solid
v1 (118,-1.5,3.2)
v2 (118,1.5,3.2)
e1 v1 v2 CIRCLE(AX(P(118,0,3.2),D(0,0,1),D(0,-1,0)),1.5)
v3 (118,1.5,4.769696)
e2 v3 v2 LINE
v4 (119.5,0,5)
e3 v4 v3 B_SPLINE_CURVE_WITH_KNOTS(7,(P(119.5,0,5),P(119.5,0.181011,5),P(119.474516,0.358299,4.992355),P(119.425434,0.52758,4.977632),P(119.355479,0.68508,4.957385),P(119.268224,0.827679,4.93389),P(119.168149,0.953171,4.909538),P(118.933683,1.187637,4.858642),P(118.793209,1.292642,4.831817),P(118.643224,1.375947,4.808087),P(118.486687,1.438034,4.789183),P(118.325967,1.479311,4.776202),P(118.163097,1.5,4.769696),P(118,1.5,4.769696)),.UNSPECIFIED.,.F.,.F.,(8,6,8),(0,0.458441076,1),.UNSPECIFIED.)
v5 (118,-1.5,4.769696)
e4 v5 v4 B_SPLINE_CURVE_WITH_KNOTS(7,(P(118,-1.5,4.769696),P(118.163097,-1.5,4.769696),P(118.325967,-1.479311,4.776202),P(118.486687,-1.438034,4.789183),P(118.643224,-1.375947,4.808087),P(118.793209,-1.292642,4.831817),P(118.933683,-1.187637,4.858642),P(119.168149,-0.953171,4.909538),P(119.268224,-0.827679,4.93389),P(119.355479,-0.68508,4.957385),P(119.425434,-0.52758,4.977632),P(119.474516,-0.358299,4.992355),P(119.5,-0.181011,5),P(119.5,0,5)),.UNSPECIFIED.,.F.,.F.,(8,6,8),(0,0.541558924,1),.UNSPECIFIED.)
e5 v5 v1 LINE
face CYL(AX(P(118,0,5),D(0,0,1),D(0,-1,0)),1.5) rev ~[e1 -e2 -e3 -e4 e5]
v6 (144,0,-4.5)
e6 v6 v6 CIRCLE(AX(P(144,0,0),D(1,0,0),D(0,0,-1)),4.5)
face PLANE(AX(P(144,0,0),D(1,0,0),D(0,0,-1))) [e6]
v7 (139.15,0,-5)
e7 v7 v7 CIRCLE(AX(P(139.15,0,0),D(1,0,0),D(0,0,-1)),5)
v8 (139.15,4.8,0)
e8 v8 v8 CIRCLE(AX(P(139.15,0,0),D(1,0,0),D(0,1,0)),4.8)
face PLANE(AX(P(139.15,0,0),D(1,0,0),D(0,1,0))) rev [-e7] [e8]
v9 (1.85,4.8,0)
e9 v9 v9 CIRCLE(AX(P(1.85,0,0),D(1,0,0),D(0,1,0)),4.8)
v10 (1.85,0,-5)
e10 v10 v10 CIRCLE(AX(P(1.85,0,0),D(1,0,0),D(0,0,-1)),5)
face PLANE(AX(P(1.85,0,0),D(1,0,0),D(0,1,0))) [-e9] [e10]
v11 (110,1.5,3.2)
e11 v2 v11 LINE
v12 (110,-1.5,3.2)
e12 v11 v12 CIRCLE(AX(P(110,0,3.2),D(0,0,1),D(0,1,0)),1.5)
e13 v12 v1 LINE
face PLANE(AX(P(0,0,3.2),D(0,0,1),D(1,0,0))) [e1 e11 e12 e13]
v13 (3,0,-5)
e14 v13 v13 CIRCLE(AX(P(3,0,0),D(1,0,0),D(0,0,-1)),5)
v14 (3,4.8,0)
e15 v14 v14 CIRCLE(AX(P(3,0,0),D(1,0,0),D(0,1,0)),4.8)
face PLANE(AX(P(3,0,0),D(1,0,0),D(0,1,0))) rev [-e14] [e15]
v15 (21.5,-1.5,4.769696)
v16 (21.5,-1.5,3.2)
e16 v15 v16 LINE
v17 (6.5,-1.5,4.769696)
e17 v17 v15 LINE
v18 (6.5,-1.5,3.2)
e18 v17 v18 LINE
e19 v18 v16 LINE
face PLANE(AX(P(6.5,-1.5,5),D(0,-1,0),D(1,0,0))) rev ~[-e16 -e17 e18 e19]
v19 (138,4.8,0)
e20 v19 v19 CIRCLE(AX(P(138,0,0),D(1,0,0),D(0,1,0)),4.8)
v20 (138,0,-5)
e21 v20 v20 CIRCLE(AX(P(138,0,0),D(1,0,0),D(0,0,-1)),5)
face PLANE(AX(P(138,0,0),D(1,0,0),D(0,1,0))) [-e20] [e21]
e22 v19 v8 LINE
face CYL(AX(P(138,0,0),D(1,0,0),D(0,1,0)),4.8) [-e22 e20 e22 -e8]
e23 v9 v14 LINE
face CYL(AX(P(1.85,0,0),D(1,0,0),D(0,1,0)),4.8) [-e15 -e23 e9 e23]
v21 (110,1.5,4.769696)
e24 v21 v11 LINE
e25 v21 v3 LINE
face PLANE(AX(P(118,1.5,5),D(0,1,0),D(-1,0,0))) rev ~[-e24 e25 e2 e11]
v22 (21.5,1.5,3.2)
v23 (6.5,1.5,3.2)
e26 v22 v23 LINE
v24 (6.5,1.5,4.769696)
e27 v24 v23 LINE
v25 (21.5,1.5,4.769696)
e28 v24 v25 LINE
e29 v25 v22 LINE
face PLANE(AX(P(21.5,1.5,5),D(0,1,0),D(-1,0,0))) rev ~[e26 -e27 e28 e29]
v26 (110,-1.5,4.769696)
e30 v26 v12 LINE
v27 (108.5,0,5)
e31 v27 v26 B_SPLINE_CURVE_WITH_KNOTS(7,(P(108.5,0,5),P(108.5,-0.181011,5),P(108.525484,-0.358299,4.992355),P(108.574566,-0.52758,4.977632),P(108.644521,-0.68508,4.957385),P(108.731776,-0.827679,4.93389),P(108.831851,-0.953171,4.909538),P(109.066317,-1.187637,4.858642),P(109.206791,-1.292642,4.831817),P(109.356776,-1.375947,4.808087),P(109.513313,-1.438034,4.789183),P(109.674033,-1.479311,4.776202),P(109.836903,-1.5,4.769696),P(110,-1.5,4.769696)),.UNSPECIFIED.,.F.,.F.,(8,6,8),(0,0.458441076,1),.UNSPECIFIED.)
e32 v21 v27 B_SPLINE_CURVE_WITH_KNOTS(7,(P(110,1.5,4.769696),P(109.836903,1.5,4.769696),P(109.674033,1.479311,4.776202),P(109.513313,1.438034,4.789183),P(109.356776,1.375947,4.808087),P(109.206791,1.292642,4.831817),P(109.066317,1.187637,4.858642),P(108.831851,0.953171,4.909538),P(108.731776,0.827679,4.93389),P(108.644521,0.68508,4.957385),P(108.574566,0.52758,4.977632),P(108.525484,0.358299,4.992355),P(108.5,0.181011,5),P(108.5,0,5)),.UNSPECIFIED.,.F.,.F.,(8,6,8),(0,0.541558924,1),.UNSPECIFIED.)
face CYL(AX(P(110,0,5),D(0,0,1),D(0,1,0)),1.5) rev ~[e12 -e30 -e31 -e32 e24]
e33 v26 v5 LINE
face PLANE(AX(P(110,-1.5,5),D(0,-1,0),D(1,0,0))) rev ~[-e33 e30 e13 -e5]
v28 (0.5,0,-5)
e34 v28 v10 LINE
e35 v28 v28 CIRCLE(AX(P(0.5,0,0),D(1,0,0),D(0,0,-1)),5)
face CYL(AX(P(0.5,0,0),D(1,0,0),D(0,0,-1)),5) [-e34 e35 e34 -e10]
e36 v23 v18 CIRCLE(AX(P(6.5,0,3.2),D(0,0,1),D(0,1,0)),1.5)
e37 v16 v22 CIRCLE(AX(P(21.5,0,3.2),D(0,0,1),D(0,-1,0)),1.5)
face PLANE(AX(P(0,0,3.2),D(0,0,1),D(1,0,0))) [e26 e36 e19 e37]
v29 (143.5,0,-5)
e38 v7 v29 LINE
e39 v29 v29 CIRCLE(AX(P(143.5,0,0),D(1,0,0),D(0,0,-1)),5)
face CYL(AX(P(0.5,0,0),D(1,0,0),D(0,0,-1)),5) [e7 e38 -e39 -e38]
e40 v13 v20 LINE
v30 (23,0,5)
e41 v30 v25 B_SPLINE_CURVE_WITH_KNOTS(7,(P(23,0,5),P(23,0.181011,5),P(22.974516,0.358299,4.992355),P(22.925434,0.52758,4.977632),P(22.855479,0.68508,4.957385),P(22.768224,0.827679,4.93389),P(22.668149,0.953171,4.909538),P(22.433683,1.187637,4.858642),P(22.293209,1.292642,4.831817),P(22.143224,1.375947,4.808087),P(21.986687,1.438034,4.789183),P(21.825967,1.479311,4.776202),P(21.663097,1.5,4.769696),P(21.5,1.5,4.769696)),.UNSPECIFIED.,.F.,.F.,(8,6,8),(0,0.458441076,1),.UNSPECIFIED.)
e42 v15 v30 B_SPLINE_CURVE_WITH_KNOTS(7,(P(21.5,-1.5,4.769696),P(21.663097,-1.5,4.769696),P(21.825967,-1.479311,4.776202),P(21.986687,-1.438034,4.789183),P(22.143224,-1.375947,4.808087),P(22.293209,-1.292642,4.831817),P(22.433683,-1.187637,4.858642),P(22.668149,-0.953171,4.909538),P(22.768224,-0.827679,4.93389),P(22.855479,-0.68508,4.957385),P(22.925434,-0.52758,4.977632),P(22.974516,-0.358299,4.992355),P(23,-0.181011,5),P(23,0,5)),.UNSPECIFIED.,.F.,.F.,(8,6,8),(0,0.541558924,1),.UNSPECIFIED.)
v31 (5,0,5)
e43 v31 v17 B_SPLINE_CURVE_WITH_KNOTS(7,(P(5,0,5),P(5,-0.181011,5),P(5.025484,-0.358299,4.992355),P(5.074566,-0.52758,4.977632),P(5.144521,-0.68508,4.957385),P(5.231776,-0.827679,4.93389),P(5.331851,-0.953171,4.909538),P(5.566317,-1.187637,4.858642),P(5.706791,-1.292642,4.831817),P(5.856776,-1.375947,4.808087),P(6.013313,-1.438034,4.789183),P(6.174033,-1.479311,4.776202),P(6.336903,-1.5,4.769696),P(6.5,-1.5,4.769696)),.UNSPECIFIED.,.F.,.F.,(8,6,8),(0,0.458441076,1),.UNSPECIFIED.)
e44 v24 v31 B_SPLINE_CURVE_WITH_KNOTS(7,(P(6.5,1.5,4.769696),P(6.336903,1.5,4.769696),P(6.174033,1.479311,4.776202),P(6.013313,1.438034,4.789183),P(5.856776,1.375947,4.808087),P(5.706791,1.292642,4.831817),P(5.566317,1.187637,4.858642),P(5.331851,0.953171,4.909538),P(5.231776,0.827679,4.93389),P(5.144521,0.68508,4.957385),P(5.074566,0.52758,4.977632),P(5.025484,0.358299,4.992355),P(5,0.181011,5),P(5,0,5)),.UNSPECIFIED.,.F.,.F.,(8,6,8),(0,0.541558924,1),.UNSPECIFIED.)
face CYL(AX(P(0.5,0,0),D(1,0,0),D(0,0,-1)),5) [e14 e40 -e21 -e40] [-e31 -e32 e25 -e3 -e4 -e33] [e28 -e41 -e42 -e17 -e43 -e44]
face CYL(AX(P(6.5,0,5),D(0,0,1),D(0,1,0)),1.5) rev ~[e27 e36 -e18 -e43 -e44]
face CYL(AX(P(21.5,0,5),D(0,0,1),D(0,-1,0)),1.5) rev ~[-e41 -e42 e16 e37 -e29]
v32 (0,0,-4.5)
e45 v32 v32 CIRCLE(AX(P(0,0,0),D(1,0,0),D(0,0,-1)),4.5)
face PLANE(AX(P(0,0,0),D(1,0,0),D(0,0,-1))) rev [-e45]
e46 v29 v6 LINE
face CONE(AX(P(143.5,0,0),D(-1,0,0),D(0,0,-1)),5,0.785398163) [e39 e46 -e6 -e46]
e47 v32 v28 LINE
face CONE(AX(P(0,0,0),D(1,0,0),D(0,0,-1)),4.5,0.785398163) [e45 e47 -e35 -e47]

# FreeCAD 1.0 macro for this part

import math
import FreeCAD as App
import Part
import Sketcher
from FreeCAD import Vector


def add_polygon(sketch, points):
    """Adds a closed chain of lines whose ends are joined by coincident constraints."""
    first, n = sketch.GeometryCount, len(points)
    for a, b in zip(points, points[1:] + points[:1]):
        sketch.addGeometry(Part.LineSegment(App.Vector(*a, 0), App.Vector(*b, 0)), False)
    for i in range(n):
        sketch.addConstraint(Sketcher.Constraint("Coincident", first + i, 2, first + (i + 1) % n, 1))

doc = App.newDocument("Part")
body = doc.addObject("PartDesign::Body", "Body")

sketch1 = body.newObject("Sketcher::SketchObject", "Sketch")
sketch1.AttachmentSupport = (doc.getObject("XZ_Plane"), [""])
sketch1.MapMode = "FlatFace"
add_polygon(sketch1, [(0, 0), (144, 0), (144, -4.5), (143.5, -5), (0.5, -5), (0, -4.5)])
sketch1.addConstraint([
    Sketcher.Constraint("Horizontal", 0),
    Sketcher.Constraint("Vertical", 1),
    Sketcher.Constraint("Horizontal", 3),
    Sketcher.Constraint("Vertical", 5),
    Sketcher.Constraint("Coincident", 5, 2, -1, 1),
    Sketcher.Constraint("Perpendicular", 2, 4),
    Sketcher.Constraint("Horizontal", 1, 2, 4, 2),
    Sketcher.Constraint("Equal", 2, 4),
    Sketcher.Constraint("DistanceX", 0, 1, 0, 2, 144.0),
    Sketcher.Constraint("DistanceX", 3, 2, 3, 1, 143.0),
    Sketcher.Constraint("DistanceY", 1, 2, 1, 1, 4.5),
])
revolution = body.newObject("PartDesign::Revolution", "Revolution")
revolution.Profile = sketch1
revolution.ReferenceAxis = (sketch1, ["H_Axis"])
revolution.Angle = 360

sketch2 = body.newObject("Sketcher::SketchObject", "Sketch001")
sketch2.AttachmentSupport = (doc.getObject("XY_Plane"), [""])
sketch2.MapMode = "FlatFace"
add_polygon(sketch2, [(3, 9.6), (1.9, 9.6), (1.9, 4.8), (3, 4.8)])
sketch2.addConstraint([
    Sketcher.Constraint("Horizontal", 0),
    Sketcher.Constraint("Vertical", 1),
    Sketcher.Constraint("Horizontal", 2),
    Sketcher.Constraint("Vertical", 3),
    Sketcher.Constraint("DistanceY", 1, 2, 1, 1, 4.8),
    Sketcher.Constraint("DistanceX", -1, 1, 2, 2, 3.0),
    Sketcher.Constraint("DistanceX", 0, 2, 0, 1, 1.15),
    Sketcher.Constraint("DistanceY", -1, 1, 0, 2, 9.6),
])
groove = body.newObject("PartDesign::Groove", "Groove")
groove.Profile = sketch2
groove.ReferenceAxis = (sketch2, ["H_Axis"])
groove.Angle = 360

sketch3 = body.newObject("Sketcher::SketchObject", "Sketch002")
sketch3.AttachmentSupport = (doc.getObject("XY_Plane"), [""])
sketch3.MapMode = "FlatFace"
add_polygon(sketch3, [(139.2, 9.6), (138, 9.6), (138, 4.8), (139.2, 4.8)])
sketch3.addConstraint([
    Sketcher.Constraint("Horizontal", 0),
    Sketcher.Constraint("Vertical", 1),
    Sketcher.Constraint("Horizontal", 2),
    Sketcher.Constraint("Vertical", 3),
    Sketcher.Constraint("DistanceY", 1, 2, 1, 1, 4.8),
    Sketcher.Constraint("DistanceX", -1, 1, 0, 2, 138.0),
    Sketcher.Constraint("DistanceX", 0, 2, 0, 1, 1.15),
    Sketcher.Constraint("DistanceY", -1, 1, 0, 2, 9.6),
])
groove2 = body.newObject("PartDesign::Groove", "Groove001")
groove2.Profile = sketch3
groove2.ReferenceAxis = (sketch3, ["H_Axis"])
groove2.Angle = 360

sketch4 = body.newObject("Sketcher::SketchObject", "Sketch003")
sketch4.AttachmentSupport = (doc.getObject("XY_Plane"), [""])
sketch4.MapMode = "FlatFace"
sketch4.AttachmentOffset = App.Placement(Vector(0, 0, 5), App.Rotation())
sketch4.addGeometry([
    Part.LineSegment(Vector(21.5, 1.5, 0), Vector(6.5, 1.5, 0)),
    Part.ArcOfCircle(Part.Circle(Vector(6.5, 0, 0), Vector(0, 0, 1), 1.5), math.radians(90), math.radians(270)),
    Part.LineSegment(Vector(6.5, -1.5, 0), Vector(21.5, -1.5, 0)),
    Part.ArcOfCircle(Part.Circle(Vector(21.5, 0, 0), Vector(0, 0, 1), 1.5), math.radians(-90), math.radians(90)),
], False)
sketch4.addConstraint([
    Sketcher.Constraint("Tangent", 0, 2, 1, 1),
    Sketcher.Constraint("Tangent", 1, 2, 2, 1),
    Sketcher.Constraint("Tangent", 2, 2, 3, 1),
    Sketcher.Constraint("Tangent", 3, 2, 0, 1),
    Sketcher.Constraint("Horizontal", 0),
    Sketcher.Constraint("Horizontal", 2),
    Sketcher.Constraint("PointOnObject", 1, 3, -1),
    Sketcher.Constraint("Radius", 1, 1.5),
    Sketcher.Constraint("DistanceX", 0, 2, 0, 1, 15.0),
    Sketcher.Constraint("DistanceX", -1, 1, 1, 3, 6.5),
])
pocket1 = body.newObject("PartDesign::Pocket", "Pocket")
pocket1.Profile = sketch4
pocket1.Length = 1.8

sketch5 = body.newObject("Sketcher::SketchObject", "Sketch004")
sketch5.AttachmentSupport = (doc.getObject("XY_Plane"), [""])
sketch5.MapMode = "FlatFace"
sketch5.AttachmentOffset = App.Placement(Vector(0, 0, 5), App.Rotation())
sketch5.addGeometry([
    Part.LineSegment(Vector(118, 1.5, 0), Vector(110, 1.5, 0)),
    Part.ArcOfCircle(Part.Circle(Vector(110, 0, 0), Vector(0, 0, 1), 1.5), math.radians(90), math.radians(270)),
    Part.LineSegment(Vector(110, -1.5, 0), Vector(118, -1.5, 0)),
    Part.ArcOfCircle(Part.Circle(Vector(118, 0, 0), Vector(0, 0, 1), 1.5), math.radians(-90), math.radians(90)),
], False)
sketch5.addConstraint([
    Sketcher.Constraint("Tangent", 0, 2, 1, 1),
    Sketcher.Constraint("Tangent", 1, 2, 2, 1),
    Sketcher.Constraint("Tangent", 2, 2, 3, 1),
    Sketcher.Constraint("Tangent", 3, 2, 0, 1),
    Sketcher.Constraint("Horizontal", 0),
    Sketcher.Constraint("Horizontal", 2),
    Sketcher.Constraint("PointOnObject", 1, 3, -1),
    Sketcher.Constraint("Radius", 1, 1.5),
    Sketcher.Constraint("DistanceX", 0, 2, 0, 1, 8.0),
    Sketcher.Constraint("DistanceX", -1, 1, 1, 3, 110.0),
])
pocket2 = body.newObject("PartDesign::Pocket", "Pocket001")
pocket2.Profile = sketch5
pocket2.Length = 1.8

doc.recompute()
